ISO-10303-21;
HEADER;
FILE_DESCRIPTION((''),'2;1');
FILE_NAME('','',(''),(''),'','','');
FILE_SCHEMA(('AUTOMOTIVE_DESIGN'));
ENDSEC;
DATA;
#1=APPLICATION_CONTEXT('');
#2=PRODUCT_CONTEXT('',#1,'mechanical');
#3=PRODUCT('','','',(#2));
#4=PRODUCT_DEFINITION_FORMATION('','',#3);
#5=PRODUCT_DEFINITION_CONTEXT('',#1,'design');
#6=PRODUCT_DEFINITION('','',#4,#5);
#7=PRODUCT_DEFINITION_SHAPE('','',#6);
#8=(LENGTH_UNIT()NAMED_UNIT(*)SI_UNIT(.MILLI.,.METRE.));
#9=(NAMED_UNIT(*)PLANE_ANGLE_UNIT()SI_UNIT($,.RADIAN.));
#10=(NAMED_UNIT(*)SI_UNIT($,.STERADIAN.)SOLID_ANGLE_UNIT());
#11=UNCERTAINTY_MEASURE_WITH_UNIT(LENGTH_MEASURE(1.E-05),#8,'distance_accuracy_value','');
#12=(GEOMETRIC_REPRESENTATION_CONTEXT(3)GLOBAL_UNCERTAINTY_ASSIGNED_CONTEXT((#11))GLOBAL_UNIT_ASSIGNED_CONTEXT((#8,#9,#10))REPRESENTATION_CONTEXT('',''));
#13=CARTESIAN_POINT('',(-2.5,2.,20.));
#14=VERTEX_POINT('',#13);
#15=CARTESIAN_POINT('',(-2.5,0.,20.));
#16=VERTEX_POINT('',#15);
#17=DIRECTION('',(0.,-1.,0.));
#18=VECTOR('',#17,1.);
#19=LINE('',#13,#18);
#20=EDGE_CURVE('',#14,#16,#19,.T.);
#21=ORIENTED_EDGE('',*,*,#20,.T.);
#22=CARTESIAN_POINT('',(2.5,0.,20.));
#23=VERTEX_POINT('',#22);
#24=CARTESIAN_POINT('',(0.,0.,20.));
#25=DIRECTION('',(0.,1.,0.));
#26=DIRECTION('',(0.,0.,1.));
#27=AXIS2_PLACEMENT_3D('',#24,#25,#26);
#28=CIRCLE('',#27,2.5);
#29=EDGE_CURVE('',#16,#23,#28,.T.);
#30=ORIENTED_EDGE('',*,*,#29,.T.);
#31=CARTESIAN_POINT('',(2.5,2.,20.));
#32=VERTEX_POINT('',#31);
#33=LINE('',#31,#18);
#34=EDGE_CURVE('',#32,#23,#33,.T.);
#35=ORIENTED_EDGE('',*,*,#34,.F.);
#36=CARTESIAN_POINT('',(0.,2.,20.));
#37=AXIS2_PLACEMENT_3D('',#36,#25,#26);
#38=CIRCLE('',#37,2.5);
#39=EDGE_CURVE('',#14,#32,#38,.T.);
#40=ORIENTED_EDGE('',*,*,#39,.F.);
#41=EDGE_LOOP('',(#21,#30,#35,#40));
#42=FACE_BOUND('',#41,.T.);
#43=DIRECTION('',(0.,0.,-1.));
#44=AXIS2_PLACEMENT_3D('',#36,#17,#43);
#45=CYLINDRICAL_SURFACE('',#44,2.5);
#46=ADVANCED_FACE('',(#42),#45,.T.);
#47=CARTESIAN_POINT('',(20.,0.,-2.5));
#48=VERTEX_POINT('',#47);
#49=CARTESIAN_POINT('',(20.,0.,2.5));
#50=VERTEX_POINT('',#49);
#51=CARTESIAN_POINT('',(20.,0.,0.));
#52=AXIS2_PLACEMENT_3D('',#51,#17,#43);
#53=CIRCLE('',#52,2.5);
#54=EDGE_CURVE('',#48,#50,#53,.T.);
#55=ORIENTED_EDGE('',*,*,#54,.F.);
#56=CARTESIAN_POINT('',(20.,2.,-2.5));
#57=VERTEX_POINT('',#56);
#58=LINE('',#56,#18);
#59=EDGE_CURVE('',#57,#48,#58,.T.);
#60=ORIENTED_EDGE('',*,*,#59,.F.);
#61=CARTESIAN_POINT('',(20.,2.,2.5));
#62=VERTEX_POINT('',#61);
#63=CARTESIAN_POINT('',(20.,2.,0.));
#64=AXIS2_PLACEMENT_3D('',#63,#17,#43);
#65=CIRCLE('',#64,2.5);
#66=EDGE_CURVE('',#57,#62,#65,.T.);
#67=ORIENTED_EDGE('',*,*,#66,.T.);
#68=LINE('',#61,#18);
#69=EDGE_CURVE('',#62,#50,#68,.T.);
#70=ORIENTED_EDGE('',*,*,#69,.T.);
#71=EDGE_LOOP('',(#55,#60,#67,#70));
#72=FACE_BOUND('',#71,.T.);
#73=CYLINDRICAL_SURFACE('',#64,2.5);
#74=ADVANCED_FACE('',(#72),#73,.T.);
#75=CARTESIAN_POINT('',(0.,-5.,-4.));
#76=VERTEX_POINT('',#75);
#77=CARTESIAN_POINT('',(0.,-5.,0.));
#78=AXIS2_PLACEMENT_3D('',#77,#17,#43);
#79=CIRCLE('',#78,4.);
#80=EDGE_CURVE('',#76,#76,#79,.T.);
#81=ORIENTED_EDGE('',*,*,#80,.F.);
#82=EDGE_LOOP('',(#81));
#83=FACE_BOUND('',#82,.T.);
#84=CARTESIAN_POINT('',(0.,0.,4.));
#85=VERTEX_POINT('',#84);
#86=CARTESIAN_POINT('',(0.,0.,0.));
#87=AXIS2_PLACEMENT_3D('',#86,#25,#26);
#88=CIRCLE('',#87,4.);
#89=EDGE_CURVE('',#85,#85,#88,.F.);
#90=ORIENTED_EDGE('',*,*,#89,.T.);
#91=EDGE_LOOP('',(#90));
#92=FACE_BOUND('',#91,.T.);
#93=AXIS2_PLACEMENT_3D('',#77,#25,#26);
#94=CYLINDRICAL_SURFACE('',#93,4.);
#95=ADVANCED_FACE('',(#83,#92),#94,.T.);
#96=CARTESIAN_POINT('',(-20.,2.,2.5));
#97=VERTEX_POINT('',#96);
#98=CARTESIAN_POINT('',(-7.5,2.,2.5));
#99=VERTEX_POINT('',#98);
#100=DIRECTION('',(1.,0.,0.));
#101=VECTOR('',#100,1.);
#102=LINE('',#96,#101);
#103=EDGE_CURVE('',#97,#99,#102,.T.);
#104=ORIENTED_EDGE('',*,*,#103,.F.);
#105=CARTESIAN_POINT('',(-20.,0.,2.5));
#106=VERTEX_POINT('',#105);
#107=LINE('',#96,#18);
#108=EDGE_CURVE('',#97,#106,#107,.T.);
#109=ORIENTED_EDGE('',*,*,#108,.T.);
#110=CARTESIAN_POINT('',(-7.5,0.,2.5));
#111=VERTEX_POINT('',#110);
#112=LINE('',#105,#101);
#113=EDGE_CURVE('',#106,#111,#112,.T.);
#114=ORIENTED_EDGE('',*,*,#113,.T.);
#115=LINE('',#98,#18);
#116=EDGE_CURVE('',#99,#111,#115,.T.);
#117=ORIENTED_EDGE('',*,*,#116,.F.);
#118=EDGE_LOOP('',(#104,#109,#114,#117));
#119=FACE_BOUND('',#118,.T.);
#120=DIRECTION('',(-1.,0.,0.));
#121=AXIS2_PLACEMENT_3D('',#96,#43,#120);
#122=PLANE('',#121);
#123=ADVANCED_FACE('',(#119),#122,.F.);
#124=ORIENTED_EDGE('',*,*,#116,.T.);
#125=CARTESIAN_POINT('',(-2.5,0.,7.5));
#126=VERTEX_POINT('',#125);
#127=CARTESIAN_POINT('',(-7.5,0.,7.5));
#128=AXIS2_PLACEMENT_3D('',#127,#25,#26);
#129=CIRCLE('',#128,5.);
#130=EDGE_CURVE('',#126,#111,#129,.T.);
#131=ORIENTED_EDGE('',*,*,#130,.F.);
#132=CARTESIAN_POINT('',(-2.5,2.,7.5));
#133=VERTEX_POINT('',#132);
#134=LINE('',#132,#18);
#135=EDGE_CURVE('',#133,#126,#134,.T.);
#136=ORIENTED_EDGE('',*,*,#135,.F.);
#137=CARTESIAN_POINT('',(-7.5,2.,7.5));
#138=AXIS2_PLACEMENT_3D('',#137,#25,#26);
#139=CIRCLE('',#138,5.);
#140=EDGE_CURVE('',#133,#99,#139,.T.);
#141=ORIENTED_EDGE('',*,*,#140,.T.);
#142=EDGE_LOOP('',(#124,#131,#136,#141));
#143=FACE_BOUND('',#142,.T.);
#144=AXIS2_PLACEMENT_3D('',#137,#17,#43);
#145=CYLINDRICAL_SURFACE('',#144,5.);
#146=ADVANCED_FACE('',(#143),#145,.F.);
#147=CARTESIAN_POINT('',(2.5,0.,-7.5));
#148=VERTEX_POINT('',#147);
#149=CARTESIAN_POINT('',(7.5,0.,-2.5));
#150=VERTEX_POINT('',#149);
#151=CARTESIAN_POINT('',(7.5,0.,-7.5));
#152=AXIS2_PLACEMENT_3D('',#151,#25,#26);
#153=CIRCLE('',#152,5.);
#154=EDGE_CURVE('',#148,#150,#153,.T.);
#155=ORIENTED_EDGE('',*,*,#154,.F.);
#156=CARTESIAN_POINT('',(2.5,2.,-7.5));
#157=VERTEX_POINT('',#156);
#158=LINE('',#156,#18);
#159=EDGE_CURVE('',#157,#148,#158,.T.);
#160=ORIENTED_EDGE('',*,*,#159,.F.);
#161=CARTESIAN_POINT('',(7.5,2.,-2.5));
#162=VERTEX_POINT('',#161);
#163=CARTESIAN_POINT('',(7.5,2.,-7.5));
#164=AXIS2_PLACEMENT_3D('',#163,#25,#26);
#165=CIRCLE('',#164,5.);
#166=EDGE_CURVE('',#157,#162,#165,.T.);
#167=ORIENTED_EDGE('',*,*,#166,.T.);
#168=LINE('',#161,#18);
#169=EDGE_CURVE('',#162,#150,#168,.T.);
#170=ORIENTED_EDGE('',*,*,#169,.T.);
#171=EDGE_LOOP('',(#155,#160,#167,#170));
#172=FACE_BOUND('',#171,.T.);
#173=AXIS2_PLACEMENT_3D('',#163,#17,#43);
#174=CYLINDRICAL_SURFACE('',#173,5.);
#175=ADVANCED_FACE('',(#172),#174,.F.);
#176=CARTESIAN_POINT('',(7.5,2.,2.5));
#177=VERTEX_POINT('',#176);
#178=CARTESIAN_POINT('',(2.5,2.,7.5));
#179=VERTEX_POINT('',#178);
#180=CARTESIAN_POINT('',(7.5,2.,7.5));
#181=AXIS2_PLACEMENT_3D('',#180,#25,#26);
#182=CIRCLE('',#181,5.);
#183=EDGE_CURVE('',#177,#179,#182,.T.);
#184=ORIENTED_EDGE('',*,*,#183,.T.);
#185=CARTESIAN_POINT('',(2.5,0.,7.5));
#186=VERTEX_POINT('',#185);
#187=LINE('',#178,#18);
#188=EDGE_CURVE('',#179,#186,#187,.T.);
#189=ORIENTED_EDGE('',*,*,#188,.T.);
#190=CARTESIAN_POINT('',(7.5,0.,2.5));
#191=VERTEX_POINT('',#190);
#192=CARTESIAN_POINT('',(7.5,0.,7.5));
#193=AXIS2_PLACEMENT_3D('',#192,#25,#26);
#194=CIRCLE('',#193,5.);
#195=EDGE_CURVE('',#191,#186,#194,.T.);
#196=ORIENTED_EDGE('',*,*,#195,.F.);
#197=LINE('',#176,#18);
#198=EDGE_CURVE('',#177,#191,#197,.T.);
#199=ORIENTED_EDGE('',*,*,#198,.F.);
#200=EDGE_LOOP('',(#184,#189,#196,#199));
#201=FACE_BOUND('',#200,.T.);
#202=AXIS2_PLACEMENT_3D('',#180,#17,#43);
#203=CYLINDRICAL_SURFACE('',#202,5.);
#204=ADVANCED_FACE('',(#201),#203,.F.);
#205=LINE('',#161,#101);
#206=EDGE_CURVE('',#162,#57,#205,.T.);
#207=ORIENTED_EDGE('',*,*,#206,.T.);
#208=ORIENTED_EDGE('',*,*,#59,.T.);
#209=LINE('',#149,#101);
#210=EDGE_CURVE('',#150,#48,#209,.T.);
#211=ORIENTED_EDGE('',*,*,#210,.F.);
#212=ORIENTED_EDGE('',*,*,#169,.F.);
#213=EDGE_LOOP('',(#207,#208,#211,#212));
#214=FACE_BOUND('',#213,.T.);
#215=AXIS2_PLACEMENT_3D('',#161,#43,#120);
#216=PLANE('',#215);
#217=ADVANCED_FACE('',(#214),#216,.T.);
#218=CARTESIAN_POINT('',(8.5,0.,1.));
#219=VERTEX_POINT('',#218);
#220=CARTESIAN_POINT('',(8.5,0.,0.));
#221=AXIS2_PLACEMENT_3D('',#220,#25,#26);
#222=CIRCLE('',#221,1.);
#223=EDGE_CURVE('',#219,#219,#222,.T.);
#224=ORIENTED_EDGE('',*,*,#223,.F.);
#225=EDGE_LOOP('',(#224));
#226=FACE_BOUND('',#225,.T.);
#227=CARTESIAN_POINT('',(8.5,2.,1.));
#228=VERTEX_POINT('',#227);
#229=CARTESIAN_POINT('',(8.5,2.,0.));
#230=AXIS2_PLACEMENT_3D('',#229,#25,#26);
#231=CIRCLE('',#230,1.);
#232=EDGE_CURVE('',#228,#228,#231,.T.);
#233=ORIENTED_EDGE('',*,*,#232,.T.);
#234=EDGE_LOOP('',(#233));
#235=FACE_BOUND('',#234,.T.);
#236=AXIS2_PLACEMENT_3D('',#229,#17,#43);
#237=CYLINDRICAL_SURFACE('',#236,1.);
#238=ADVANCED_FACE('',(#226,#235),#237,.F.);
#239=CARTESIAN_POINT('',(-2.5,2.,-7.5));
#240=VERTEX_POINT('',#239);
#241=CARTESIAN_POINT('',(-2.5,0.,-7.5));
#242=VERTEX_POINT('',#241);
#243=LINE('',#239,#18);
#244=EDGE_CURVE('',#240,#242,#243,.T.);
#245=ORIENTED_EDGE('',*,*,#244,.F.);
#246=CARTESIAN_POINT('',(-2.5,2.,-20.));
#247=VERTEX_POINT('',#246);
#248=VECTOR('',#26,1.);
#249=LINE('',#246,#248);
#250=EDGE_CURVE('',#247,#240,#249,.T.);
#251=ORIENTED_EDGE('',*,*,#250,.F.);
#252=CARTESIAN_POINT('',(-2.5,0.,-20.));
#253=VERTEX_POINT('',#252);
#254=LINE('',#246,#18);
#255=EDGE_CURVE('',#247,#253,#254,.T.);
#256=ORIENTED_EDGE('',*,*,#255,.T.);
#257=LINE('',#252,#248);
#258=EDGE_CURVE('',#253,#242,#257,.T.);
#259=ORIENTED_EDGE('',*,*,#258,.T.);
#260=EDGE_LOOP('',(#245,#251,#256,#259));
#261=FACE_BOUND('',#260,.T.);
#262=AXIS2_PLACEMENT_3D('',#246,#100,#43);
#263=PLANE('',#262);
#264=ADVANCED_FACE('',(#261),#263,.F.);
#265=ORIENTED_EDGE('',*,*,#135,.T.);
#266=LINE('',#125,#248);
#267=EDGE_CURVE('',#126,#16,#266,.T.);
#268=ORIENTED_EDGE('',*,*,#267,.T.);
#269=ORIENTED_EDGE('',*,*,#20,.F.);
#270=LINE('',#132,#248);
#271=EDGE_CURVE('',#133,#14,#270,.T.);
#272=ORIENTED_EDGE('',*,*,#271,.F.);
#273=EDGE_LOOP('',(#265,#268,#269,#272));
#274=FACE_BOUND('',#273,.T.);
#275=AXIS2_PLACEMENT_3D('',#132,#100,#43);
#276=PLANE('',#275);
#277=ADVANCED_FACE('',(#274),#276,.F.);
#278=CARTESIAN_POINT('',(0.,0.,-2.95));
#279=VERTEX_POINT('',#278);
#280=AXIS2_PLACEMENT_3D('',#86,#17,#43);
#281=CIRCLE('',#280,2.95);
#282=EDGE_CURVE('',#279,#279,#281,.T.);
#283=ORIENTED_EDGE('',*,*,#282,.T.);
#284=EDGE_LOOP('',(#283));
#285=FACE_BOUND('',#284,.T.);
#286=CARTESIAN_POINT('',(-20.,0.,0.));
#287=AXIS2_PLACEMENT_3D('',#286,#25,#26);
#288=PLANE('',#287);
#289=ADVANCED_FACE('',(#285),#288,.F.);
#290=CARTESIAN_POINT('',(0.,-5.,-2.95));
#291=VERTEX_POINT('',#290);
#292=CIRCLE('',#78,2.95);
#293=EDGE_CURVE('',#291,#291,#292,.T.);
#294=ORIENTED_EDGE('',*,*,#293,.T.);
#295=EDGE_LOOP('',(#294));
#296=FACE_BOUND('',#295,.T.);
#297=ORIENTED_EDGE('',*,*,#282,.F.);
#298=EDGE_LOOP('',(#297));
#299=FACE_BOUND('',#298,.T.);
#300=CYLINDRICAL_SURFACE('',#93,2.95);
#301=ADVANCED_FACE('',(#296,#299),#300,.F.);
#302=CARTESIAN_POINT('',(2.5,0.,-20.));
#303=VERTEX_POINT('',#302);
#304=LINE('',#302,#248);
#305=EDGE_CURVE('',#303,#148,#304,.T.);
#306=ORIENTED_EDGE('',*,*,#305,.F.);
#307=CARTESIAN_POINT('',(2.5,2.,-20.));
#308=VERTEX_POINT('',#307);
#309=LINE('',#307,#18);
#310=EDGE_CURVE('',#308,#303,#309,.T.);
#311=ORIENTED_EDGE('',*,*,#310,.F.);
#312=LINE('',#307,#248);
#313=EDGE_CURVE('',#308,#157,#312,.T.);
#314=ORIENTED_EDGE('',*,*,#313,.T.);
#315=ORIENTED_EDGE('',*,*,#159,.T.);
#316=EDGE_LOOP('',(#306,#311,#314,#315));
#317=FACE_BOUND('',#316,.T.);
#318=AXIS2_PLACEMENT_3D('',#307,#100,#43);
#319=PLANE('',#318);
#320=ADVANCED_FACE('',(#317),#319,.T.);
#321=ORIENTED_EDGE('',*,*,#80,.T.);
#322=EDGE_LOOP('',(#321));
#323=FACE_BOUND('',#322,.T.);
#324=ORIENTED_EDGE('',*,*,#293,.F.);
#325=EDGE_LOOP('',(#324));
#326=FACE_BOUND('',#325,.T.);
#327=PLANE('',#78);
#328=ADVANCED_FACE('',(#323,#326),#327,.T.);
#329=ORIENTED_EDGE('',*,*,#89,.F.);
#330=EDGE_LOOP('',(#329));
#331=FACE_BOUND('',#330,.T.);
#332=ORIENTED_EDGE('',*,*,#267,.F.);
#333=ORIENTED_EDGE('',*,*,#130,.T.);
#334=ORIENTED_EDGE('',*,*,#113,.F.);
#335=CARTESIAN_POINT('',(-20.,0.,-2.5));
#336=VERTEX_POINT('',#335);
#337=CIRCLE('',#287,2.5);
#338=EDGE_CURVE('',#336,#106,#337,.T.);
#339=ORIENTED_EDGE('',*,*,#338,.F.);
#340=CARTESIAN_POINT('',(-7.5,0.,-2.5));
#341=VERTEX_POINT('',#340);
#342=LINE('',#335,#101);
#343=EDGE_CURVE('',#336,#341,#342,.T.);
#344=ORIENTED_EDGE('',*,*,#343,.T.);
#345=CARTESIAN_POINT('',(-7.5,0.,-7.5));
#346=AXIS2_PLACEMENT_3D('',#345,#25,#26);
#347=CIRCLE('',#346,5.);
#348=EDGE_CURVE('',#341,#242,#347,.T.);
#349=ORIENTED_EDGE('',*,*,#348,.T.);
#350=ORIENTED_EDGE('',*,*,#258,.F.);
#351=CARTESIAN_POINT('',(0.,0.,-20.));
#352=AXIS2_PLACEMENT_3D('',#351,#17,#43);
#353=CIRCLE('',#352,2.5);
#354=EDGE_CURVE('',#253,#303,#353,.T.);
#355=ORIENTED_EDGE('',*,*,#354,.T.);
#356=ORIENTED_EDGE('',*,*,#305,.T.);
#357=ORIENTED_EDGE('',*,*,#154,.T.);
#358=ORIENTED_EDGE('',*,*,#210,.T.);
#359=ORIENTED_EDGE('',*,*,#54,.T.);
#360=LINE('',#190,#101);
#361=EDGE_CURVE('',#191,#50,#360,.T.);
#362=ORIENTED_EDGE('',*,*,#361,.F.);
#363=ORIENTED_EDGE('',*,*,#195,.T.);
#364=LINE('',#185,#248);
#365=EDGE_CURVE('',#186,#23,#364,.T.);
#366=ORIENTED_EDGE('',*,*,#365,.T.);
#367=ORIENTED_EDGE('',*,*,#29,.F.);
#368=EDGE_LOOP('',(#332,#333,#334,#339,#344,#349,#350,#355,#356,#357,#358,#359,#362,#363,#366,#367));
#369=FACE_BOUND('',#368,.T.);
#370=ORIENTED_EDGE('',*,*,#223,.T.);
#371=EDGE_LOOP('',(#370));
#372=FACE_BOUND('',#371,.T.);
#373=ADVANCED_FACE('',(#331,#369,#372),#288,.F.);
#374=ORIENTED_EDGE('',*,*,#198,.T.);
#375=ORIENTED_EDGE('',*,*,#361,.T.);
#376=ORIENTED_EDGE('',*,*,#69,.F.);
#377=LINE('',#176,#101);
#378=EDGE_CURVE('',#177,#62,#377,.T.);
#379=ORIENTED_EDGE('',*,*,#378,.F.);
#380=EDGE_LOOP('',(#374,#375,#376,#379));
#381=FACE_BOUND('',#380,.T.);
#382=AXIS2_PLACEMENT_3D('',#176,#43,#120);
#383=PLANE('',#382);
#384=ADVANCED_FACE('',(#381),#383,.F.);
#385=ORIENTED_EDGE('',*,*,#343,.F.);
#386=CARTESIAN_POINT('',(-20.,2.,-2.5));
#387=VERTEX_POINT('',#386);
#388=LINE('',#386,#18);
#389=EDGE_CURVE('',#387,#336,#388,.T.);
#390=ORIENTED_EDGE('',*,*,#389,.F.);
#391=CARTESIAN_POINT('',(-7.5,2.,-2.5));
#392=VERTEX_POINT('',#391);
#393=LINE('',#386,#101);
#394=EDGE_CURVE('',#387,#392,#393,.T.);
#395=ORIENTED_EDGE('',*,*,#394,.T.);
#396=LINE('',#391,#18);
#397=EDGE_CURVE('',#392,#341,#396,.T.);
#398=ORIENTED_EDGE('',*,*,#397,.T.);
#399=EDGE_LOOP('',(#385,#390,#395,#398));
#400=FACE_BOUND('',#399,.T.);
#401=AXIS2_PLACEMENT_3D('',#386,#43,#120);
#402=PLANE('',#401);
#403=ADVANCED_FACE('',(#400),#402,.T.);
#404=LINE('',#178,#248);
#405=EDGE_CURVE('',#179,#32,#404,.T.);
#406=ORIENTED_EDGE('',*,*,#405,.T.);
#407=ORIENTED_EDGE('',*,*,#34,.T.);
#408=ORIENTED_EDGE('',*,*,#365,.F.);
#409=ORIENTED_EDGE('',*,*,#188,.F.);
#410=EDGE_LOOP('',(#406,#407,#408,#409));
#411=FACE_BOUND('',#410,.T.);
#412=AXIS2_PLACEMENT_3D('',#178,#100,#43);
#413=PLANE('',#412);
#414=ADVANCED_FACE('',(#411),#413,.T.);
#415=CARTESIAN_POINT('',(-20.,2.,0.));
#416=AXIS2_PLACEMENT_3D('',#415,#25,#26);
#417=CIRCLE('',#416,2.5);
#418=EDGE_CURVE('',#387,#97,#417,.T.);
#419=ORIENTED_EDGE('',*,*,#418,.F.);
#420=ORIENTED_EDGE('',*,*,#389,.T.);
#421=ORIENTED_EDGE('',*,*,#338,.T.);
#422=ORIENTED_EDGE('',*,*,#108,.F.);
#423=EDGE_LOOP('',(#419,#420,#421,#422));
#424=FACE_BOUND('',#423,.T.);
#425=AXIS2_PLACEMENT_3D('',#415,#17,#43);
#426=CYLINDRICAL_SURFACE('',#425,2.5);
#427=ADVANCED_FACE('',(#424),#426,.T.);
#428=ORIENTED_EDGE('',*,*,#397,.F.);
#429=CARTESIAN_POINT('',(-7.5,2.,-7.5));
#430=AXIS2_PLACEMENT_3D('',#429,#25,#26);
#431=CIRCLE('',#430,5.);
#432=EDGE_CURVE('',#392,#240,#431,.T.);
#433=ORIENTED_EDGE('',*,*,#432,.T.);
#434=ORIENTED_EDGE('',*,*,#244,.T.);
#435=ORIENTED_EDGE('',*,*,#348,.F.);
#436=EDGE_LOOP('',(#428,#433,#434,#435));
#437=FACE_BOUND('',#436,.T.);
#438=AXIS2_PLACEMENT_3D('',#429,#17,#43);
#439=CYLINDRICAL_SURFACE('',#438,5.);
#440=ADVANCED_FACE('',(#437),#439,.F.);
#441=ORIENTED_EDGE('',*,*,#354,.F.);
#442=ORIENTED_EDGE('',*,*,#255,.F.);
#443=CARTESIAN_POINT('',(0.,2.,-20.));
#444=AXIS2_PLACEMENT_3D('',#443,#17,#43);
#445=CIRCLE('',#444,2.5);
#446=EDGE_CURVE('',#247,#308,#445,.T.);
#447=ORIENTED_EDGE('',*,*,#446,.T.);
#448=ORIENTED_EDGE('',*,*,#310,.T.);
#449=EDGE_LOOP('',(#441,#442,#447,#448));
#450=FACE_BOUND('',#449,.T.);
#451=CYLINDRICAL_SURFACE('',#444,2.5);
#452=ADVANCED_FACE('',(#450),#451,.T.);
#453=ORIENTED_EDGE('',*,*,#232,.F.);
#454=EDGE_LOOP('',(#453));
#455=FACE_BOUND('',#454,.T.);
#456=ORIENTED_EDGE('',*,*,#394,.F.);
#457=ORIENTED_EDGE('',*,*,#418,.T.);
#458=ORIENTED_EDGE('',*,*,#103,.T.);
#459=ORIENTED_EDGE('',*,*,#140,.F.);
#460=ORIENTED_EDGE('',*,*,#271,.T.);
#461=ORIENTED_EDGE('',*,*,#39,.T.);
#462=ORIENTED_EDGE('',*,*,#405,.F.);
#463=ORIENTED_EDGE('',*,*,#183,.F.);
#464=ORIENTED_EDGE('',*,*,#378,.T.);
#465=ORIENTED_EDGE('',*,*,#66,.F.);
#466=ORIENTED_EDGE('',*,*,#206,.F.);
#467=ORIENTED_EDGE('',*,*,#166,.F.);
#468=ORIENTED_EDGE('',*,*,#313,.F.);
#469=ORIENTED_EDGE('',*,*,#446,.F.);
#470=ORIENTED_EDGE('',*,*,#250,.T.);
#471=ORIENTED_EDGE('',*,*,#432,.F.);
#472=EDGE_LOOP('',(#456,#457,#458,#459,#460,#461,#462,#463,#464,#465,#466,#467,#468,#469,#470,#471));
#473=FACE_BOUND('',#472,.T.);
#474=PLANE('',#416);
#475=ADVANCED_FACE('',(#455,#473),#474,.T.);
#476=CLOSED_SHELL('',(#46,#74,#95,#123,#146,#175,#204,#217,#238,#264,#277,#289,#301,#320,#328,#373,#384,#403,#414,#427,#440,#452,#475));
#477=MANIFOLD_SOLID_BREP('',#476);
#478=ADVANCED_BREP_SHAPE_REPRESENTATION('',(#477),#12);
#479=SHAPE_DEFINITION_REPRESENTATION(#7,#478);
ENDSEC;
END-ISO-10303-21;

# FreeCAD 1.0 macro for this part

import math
import FreeCAD as App
import Part
import Sketcher

V = App.Vector
Q = App.Units.Quantity

doc = App.newDocument("Part")
body = doc.addObject("PartDesign::Body", "Body")

sketch1 = body.newObject("Sketcher::SketchObject", "Sketch")
sketch1.AttachmentSupport = (doc.getObject("XZ_Plane"), [""])
sketch1.MapMode = "FlatFace"
sketch1.addGeometry([
    Part.LineSegment(V(2.5, -7.5, 0), V(2.5, -20, 0)),
    Part.ArcOfCircle(Part.Circle(V(0, -20, 0), V(0, 0, 1), 2.5), math.radians(180), math.radians(360)),
    Part.LineSegment(V(-2.5, -20, 0), V(-2.5, -7.5, 0)),
    Part.ArcOfCircle(Part.Circle(V(-7.5, -7.5, 0), V(0, 0, 1), 5), math.radians(0), math.radians(90)),
    Part.LineSegment(V(-7.5, -2.5, 0), V(-20, -2.5, 0)),
    Part.ArcOfCircle(Part.Circle(V(-20, 0, 0), V(0, 0, 1), 2.5), math.radians(90), math.radians(270)),
    Part.LineSegment(V(-20, 2.5, 0), V(-7.5, 2.5, 0)),
    Part.ArcOfCircle(Part.Circle(V(-7.5, 7.5, 0), V(0, 0, 1), 5), math.radians(-90), math.radians(0)),
    Part.LineSegment(V(-2.5, 7.5, 0), V(-2.5, 20, 0)),
    Part.ArcOfCircle(Part.Circle(V(0, 20, 0), V(0, 0, 1), 2.5), math.radians(0), math.radians(180)),
    Part.LineSegment(V(2.5, 20, 0), V(2.5, 7.5, 0)),
    Part.ArcOfCircle(Part.Circle(V(7.5, 7.5, 0), V(0, 0, 1), 5), math.radians(180), math.radians(270)),
    Part.LineSegment(V(7.5, 2.5, 0), V(20, 2.5, 0)),
    Part.ArcOfCircle(Part.Circle(V(20, 0, 0), V(0, 0, 1), 2.5), math.radians(-90), math.radians(90)),
    Part.LineSegment(V(20, -2.5, 0), V(7.5, -2.5, 0)),
    Part.ArcOfCircle(Part.Circle(V(7.5, -7.5, 0), V(0, 0, 1), 5), math.radians(90), math.radians(180)),
    Part.Circle(V(8.5, 0, 0), V(0, 0, 1), 1),
], False)
sketch1.addConstraint([
    Sketcher.Constraint("Tangent", 0, 2, 1, 2),
    Sketcher.Constraint("Tangent", 1, 1, 2, 1),
    Sketcher.Constraint("Tangent", 2, 2, 3, 1),
    Sketcher.Constraint("Tangent", 3, 2, 4, 1),
    Sketcher.Constraint("Tangent", 4, 2, 5, 2),
    Sketcher.Constraint("Tangent", 5, 1, 6, 1),
    Sketcher.Constraint("Tangent", 6, 2, 7, 1),
    Sketcher.Constraint("Tangent", 7, 2, 8, 1),
    Sketcher.Constraint("Tangent", 8, 2, 9, 2),
    Sketcher.Constraint("Tangent", 9, 1, 10, 1),
    Sketcher.Constraint("Tangent", 10, 2, 11, 1),
    Sketcher.Constraint("Tangent", 11, 2, 12, 1),
    Sketcher.Constraint("Tangent", 12, 2, 13, 2),
    Sketcher.Constraint("Tangent", 13, 1, 14, 1),
    Sketcher.Constraint("Tangent", 14, 2, 15, 1),
    Sketcher.Constraint("Tangent", 15, 2, 0, 1),
    Sketcher.Constraint("Vertical", 0),
    Sketcher.Constraint("Vertical", 2),
    Sketcher.Constraint("Horizontal", 4),
    Sketcher.Constraint("Horizontal", 6),
    Sketcher.Constraint("Vertical", 8),
    Sketcher.Constraint("Vertical", 10),
    Sketcher.Constraint("Horizontal", 12),
    Sketcher.Constraint("Horizontal", 14),
    Sketcher.Constraint("Equal", 1, 5),
    Sketcher.Constraint("Equal", 3, 7),
    Sketcher.Constraint("Equal", 5, 9),
    Sketcher.Constraint("Equal", 7, 11),
    Sketcher.Constraint("Equal", 9, 13),
    Sketcher.Constraint("Equal", 11, 15),
    Sketcher.Constraint("Symmetric", 1, 3, 9, 3, -1, 1),
    Sketcher.Constraint("Symmetric", 5, 3, 13, 3, -1, 1),
    Sketcher.Constraint("Symmetric", 7, 3, 11, 3, -2),
    Sketcher.Constraint("PointOnObject", 16, 3, -1),
    Sketcher.Constraint("Equal", 14, 0),
    Sketcher.Constraint("Diameter", 16, Q("2 mm")),
    Sketcher.Constraint("Radius", 3, Q("5 mm")),
    Sketcher.Constraint("Radius", 1, Q("2.5 mm")),
    Sketcher.Constraint("DistanceX", 4, 2, 4, 1, Q("12.5 mm")),
    Sketcher.Constraint("DistanceX", 11, 3, 16, 3, Q("1 mm")),
])
pad1 = body.newObject("PartDesign::Pad", "Pad")
pad1.Profile = sketch1
pad1.Length = 2
pad1.Reversed = True

sketch2 = body.newObject("Sketcher::SketchObject", "Sketch001")
sketch2.AttachmentSupport = (doc.getObject("XZ_Plane"), [""])
sketch2.MapMode = "FlatFace"
sketch2.addGeometry([
    Part.Circle(V(0, 0, 0), V(0, 0, 1), 4),
    Part.Circle(V(0, 0, 0), V(0, 0, 1), 2.95),
], False)
sketch2.addConstraint([
    Sketcher.Constraint("Coincident", 0, 3, -1, 1),
    Sketcher.Constraint("Coincident", 1, 3, -1, 1),
    Sketcher.Constraint("Diameter", 0, Q("8 mm")),
    Sketcher.Constraint("Diameter", 1, Q("5.9 mm")),
])
pad2 = body.newObject("PartDesign::Pad", "Pad001")
pad2.Profile = sketch2
pad2.Length = 5

doc.recompute()
